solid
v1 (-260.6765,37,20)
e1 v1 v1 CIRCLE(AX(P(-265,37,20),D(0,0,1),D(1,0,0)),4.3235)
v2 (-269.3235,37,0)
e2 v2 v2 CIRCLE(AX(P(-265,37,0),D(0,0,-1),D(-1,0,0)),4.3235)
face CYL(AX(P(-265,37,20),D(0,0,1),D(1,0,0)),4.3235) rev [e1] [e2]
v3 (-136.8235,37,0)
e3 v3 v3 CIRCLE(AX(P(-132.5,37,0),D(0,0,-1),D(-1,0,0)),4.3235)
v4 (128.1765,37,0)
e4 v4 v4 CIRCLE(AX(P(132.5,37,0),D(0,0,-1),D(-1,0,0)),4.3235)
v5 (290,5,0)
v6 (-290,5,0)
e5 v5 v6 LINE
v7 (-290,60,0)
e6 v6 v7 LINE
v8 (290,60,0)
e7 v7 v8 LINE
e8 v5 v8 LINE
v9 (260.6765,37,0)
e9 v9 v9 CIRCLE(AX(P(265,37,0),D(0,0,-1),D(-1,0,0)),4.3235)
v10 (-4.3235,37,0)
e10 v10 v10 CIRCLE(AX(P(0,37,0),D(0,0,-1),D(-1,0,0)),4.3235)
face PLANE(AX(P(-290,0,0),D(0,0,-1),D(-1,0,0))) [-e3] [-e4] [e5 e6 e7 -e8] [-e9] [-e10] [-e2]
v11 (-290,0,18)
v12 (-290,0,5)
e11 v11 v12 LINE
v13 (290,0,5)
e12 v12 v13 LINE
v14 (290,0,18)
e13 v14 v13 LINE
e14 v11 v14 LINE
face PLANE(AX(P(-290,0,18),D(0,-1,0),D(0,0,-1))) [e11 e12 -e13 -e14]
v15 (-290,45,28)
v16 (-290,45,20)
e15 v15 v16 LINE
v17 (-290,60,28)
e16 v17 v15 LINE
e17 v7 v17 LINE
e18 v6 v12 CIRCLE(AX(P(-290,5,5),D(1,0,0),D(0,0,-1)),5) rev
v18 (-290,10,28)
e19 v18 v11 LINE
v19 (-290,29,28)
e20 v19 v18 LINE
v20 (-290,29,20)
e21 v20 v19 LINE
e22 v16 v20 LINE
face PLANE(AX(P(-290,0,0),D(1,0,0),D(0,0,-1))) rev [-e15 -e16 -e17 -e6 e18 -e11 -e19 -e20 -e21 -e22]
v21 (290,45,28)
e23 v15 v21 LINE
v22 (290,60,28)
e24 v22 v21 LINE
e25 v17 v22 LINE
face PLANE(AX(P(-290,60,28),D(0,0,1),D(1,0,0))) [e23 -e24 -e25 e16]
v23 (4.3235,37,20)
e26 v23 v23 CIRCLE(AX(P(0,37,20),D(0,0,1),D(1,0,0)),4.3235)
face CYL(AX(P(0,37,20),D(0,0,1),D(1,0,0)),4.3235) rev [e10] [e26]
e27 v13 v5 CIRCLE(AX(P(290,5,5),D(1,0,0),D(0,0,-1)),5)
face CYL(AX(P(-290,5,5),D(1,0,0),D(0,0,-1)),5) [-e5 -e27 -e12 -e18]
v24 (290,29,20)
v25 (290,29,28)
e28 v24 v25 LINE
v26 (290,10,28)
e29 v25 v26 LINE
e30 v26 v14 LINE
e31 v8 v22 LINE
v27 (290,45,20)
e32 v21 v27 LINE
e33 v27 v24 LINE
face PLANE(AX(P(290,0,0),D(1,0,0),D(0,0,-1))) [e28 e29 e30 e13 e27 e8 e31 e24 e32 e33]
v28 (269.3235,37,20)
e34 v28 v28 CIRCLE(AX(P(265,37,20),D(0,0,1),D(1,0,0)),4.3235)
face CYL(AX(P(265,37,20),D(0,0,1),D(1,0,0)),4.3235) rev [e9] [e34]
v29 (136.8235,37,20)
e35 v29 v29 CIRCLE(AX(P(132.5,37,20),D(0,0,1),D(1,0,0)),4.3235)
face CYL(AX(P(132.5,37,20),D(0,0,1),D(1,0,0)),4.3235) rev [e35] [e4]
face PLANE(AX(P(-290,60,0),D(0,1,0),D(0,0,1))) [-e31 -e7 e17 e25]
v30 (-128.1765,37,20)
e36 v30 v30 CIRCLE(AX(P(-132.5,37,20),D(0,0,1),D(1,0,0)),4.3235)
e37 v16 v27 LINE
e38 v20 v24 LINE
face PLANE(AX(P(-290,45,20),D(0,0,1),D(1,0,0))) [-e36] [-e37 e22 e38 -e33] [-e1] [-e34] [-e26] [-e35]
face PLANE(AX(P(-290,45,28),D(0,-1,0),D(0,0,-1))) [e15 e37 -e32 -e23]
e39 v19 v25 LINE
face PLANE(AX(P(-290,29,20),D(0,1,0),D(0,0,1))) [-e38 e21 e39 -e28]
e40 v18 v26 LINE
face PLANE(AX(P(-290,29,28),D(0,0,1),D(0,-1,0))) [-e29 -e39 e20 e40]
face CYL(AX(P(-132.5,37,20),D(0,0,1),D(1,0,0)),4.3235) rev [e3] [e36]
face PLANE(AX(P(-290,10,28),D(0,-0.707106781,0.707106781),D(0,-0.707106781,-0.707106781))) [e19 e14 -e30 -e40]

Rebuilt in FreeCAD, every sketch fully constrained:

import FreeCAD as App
import Part
import Sketcher
Q = App.Units.Quantity


def edges_at(feature, points):
    """Names of the edges that pass closest to the given points."""
    edges = feature.Shape.Edges
    near = lambda p: min(range(len(edges)), key=lambda i: edges[i].distToShape(Part.Vertex(*p))[0])
    return sorted({f"Edge{near(p) + 1}" for p in points})


def add_polygon(sketch, points):
    """Adds a closed chain of lines whose ends are joined by coincident constraints."""
    first, n = sketch.GeometryCount, len(points)
    for a, b in zip(points, points[1:] + points[:1]):
        sketch.addGeometry(Part.LineSegment(App.Vector(*a, 0), App.Vector(*b, 0)), False)
    for i in range(n):
        sketch.addConstraint(Sketcher.Constraint("Coincident", first + i, 2, first + (i + 1) % n, 1))

doc = App.newDocument("Part")
body = doc.addObject("PartDesign::Body", "Body")

sketch1 = body.newObject("Sketcher::SketchObject", "Sketch")
sketch1.AttachmentSupport = (doc.getObject("YZ_Plane"), [""])
sketch1.MapMode = "FlatFace"
add_polygon(sketch1, [(0, 0), (60, 0), (60, 28), (45, 28), (45, 20), (29, 20), (29, 28), (10, 28), (0, 18)])
sketch1.addConstraint(Sketcher.Constraint("Horizontal", 0))
sketch1.addConstraint(Sketcher.Constraint("Vertical", 1))
sketch1.addConstraint(Sketcher.Constraint("Horizontal", 2))
sketch1.addConstraint(Sketcher.Constraint("Vertical", 3))
sketch1.addConstraint(Sketcher.Constraint("Horizontal", 4))
sketch1.addConstraint(Sketcher.Constraint("Vertical", 5))
sketch1.addConstraint(Sketcher.Constraint("Horizontal", 6))
sketch1.addConstraint(Sketcher.Constraint("Vertical", 8))
sketch1.addConstraint(Sketcher.Constraint("Coincident", 8, 2, -1, 1))
sketch1.addConstraint(Sketcher.Constraint("Horizontal", 2, 2, 5, 2))
sketch1.addConstraint(Sketcher.Constraint("DistanceX", 0, 1, 0, 2, Q("60 mm")))
sketch1.addConstraint(Sketcher.Constraint("DistanceX", 2, 2, 2, 1, Q("15 mm")))
sketch1.addConstraint(Sketcher.Constraint("DistanceX", 4, 2, 4, 1, Q("16 mm")))
sketch1.addConstraint(Sketcher.Constraint("DistanceX", 6, 2, 6, 1, Q("19 mm")))
sketch1.addConstraint(Sketcher.Constraint("DistanceY", 1, 1, 1, 2, Q("28 mm")))
sketch1.addConstraint(Sketcher.Constraint("DistanceY", 3, 2, 3, 1, Q("8 mm")))
sketch1.addConstraint(Sketcher.Constraint("DistanceY", 8, 2, 8, 1, Q("18 mm")))
pad1 = body.newObject("PartDesign::Pad", "Pad")
pad1.Profile = sketch1
pad1.Type = "TwoLengths"
pad1.Length = 290
pad1.Length2 = 290

sketch2 = body.newObject("Sketcher::SketchObject", "Sketch001")
sketch2.AttachmentSupport = (doc.getObject("YZ_Plane"), [""])
sketch2.MapMode = "FlatFace"
sketch2.AttachmentOffset = App.Placement(App.Vector(0, 0, -265), App.Rotation())
add_polygon(sketch2, [(37, -32.6), (37, 20), (32.7, 20), (32.7, -30)])
sketch2.addGeometry(Part.LineSegment(App.Vector(37, 20, 0), App.Vector(37, -32.6, 0)), True)
sketch2.addConstraint(Sketcher.Constraint("Vertical", 0))
sketch2.addConstraint(Sketcher.Constraint("Horizontal", 1))
sketch2.addConstraint(Sketcher.Constraint("Vertical", 2))
sketch2.addConstraint(Sketcher.Constraint("Vertical", 4))
sketch2.addConstraint(Sketcher.Constraint("Coincident", 4, 1, 0, 2))
sketch2.addConstraint(Sketcher.Constraint("Equal", 0, 4))
sketch2.addConstraint(Sketcher.Constraint("DistanceY", 2, 2, 2, 1, Q("50 mm")))
sketch2.addConstraint(Sketcher.Constraint("Angle", 3, Q("-31 deg")))
sketch2.addConstraint(Sketcher.Constraint("DistanceX", -1, 1, 0, 2, Q("37 mm")))
sketch2.addConstraint(Sketcher.Constraint("DistanceY", -1, 1, 0, 2, Q("20 mm")))
sketch2.addConstraint(Sketcher.Constraint("DistanceX", 1, 2, 1, 1, Q("4.3235 mm")))
groove = body.newObject("PartDesign::Groove", "Groove")
groove.Profile = sketch2
groove.ReferenceAxis = (sketch2, ["Axis0"])
groove.Angle = 360
doc.recompute()

linearpattern = body.newObject("PartDesign::LinearPattern", "LinearPattern")
linearpattern.Originals = [groove]
linearpattern.Direction = (doc.getObject("X_Axis"), [""])
linearpattern.Mode = "offset"
linearpattern.Offset = 132.5
linearpattern.Occurrences = 5
body.Tip = linearpattern
doc.recompute()

fillet = body.newObject("PartDesign::Fillet", "Fillet")
fillet.Base = (linearpattern, edges_at(linearpattern, [(0, 0, 0)]))
fillet.Radius = 5

doc.recompute()
